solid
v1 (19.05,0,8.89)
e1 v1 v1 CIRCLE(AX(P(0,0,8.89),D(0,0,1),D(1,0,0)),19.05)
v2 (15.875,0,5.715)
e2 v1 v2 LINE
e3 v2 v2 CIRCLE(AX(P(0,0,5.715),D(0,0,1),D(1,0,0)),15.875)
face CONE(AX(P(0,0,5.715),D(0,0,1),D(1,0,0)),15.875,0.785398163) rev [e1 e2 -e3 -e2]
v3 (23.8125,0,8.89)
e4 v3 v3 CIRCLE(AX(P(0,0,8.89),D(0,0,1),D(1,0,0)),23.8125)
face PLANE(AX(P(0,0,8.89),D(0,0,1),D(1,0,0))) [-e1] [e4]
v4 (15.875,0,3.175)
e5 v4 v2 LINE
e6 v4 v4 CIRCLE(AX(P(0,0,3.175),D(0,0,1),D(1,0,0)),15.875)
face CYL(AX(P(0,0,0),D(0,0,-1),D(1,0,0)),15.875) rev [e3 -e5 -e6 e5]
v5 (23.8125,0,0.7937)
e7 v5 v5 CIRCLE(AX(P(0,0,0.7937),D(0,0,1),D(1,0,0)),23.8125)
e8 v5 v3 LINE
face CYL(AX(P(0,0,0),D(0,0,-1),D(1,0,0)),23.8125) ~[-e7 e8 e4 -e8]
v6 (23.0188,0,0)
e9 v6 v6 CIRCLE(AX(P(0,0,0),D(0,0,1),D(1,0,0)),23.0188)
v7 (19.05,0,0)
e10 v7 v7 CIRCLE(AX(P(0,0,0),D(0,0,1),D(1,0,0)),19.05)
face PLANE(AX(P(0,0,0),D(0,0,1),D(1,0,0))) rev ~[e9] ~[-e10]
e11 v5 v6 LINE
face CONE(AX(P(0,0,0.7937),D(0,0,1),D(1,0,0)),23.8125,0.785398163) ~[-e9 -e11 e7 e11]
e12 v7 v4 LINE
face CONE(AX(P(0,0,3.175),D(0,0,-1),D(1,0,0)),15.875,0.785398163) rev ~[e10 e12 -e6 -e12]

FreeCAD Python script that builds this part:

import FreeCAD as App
import Part
import Sketcher
from FreeCAD import Vector
Q = App.Units.Quantity


def edges_at(feature, points):
    """Names of the edges that pass closest to the given points."""
    edges = feature.Shape.Edges
    near = lambda p: min(range(len(edges)), key=lambda i: edges[i].distToShape(Part.Vertex(*p))[0])
    return sorted({f"Edge{near(p) + 1}" for p in points})

doc = App.newDocument("Part")
body = doc.addObject("PartDesign::Body", "Body")

sketch1 = body.newObject("Sketcher::SketchObject", "Sketch")
sketch1.AttachmentSupport = (doc.getObject("XY_Plane"), [""])
sketch1.MapMode = "FlatFace"
sketch1.addGeometry([
    Part.Circle(Vector(0, 0, 0), Vector(0, 0, 1), 24),
    Part.Circle(Vector(0, 0, 0), Vector(0, 0, 1), 16),
], False)
sketch1.addConstraint([
    Sketcher.Constraint("Coincident", 0, 3, -1, 1),
    Sketcher.Constraint("Coincident", 1, 3, -1, 1),
    Sketcher.Constraint("Diameter", 1, Q("1.25 in")),
    Sketcher.Constraint("Diameter", 0, Q("1.875 in")),
])
pad1 = body.newObject("PartDesign::Pad", "Pad")
pad1.Profile = sketch1
pad1.Length = Q("0.35 in")
doc.recompute()

chamfer = body.newObject("PartDesign::Chamfer", "Chamfer")
chamfer.Base = (pad1, edges_at(pad1, [(-23.812, 0, 0)]))
chamfer.Size = Q("0.031248 in")
doc.recompute()

chamfer2 = body.newObject("PartDesign::Chamfer", "Chamfer001")
chamfer2.Base = (chamfer, edges_at(chamfer, [(-15.875, 0, 8.89), (-15.875, 0, 0)]))
chamfer2.Size = Q("0.125 in")

doc.recompute()
